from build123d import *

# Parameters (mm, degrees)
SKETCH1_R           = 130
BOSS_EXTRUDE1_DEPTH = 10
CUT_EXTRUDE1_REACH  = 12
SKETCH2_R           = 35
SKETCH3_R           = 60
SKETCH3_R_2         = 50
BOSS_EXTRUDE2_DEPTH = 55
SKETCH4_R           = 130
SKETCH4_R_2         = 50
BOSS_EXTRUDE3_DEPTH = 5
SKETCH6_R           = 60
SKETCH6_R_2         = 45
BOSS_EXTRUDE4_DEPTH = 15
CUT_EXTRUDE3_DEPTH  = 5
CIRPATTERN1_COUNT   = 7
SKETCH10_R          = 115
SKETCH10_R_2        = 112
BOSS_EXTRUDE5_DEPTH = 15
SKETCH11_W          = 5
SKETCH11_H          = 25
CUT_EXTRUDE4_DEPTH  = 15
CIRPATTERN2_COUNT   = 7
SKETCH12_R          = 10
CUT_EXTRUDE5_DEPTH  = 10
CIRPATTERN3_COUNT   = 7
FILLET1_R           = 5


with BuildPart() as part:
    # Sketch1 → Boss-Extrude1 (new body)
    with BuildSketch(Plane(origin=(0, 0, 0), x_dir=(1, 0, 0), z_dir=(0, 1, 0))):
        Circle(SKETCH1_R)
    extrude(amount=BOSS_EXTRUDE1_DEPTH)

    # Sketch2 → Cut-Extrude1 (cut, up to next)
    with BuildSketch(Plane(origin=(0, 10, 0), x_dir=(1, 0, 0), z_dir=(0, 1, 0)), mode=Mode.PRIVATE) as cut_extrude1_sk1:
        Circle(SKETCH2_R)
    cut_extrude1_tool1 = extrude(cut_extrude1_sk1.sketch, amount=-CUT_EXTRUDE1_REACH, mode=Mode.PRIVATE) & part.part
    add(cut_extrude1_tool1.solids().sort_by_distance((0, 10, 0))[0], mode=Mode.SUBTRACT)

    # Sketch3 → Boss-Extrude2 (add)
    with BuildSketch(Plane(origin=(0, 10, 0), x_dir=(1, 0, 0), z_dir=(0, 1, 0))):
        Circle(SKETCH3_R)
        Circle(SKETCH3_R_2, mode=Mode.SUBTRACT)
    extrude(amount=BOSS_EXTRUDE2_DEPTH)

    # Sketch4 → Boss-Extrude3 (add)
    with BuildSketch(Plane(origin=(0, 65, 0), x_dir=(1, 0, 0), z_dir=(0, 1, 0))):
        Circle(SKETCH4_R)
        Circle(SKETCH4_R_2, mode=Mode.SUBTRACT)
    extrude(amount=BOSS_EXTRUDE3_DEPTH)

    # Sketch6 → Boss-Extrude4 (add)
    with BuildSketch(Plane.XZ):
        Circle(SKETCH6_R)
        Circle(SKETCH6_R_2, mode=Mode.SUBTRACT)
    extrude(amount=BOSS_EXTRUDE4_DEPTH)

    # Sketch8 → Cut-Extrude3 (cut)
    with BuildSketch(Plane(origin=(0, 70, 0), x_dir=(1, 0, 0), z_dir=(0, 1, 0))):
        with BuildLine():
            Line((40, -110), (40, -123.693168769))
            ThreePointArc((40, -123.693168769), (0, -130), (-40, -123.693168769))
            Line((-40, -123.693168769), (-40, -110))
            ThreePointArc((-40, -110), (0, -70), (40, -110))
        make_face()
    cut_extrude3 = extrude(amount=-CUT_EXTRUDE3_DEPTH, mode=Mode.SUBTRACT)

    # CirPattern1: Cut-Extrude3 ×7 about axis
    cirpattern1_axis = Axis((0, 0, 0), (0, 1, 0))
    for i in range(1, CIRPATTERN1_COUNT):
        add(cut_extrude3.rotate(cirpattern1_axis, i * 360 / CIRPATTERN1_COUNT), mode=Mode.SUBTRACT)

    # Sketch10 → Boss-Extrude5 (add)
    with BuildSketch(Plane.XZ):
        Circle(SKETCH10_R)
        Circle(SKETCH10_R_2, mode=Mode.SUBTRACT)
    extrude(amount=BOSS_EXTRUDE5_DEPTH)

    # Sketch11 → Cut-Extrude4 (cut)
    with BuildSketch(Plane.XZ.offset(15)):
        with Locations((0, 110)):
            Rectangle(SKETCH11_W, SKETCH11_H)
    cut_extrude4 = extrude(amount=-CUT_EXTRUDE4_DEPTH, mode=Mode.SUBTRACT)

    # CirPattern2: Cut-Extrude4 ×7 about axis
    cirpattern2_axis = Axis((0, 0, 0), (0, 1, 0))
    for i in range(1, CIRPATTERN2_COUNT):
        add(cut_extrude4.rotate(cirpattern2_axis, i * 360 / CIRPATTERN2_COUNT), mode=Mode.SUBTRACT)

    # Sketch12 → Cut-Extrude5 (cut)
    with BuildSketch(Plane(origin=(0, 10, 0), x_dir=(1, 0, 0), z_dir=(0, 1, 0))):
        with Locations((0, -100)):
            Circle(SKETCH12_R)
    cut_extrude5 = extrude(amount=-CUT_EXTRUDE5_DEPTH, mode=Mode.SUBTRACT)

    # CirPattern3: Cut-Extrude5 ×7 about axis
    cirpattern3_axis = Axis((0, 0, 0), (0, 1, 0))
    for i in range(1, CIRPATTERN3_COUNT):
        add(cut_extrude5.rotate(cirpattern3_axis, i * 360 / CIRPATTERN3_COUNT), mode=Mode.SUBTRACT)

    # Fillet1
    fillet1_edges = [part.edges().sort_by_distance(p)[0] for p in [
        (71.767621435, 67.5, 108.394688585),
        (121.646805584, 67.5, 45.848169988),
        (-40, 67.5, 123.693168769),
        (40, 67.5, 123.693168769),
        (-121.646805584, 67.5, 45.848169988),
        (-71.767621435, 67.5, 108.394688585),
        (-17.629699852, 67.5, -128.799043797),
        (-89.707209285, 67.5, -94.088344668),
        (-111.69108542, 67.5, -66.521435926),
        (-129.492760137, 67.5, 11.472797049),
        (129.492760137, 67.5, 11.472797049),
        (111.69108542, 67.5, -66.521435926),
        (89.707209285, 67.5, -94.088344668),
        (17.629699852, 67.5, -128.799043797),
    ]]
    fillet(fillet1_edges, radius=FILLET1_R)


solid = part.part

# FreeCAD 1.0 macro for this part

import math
import FreeCAD as App
import Part
import Sketcher
from FreeCAD import Vector


def edges_at(feature, points):
    """Names of the edges that pass closest to the given points."""
    edges = feature.Shape.Edges
    near = lambda p: min(range(len(edges)), key=lambda i: edges[i].distToShape(Part.Vertex(*p))[0])
    return sorted({f"Edge{near(p) + 1}" for p in points})

doc = App.newDocument("Part")
body = doc.addObject("PartDesign::Body", "Body")

# Sketch on XZ plane
sketch1 = body.newObject("Sketcher::SketchObject", "Sketch")
sketch1.AttachmentSupport = (doc.getObject("XZ_Plane"), [""])
sketch1.MapMode = "FlatFace"
sketch1.addGeometry(Part.Circle(Vector(0, 0, 0), Vector(0, 0, 1), 130), False)
sketch1.addConstraint(Sketcher.Constraint("Coincident", 0, 3, -1, 1))
sketch1.addConstraint(Sketcher.Constraint("Diameter", 0, 260.0))
pad1 = body.newObject("PartDesign::Pad", "Pad")
pad1.Profile = sketch1
pad1.Length = 10
pad1.Reversed = True

# Sketch on XZ plane
sketch2 = body.newObject("Sketcher::SketchObject", "Sketch001")
sketch2.AttachmentSupport = (doc.getObject("XZ_Plane"), [""])
sketch2.MapMode = "FlatFace"
sketch2.AttachmentOffset = App.Placement(Vector(0, 0, -10), App.Rotation())
sketch2.addGeometry(Part.Circle(Vector(0, 0, 0), Vector(0, 0, 1), 35), False)
sketch2.addConstraint(Sketcher.Constraint("Coincident", 0, 3, -1, 1))
sketch2.addConstraint(Sketcher.Constraint("Diameter", 0, 70.0))
pocket1 = body.newObject("PartDesign::Pocket", "Pocket")
pocket1.Profile = sketch2
pocket1.Type = "UpToFirst"
pocket1.Reversed = True

# Sketch on XZ plane
sketch3 = body.newObject("Sketcher::SketchObject", "Sketch002")
sketch3.AttachmentSupport = (doc.getObject("XZ_Plane"), [""])
sketch3.MapMode = "FlatFace"
sketch3.AttachmentOffset = App.Placement(Vector(0, 0, -10), App.Rotation())
sketch3.addGeometry(Part.Circle(Vector(0, 0, 0), Vector(0, 0, 1), 60), False)
sketch3.addGeometry(Part.Circle(Vector(0, 0, 0), Vector(0, 0, 1), 50), False)
sketch3.addConstraint(Sketcher.Constraint("Coincident", 0, 3, -1, 1))
sketch3.addConstraint(Sketcher.Constraint("Coincident", 1, 3, -1, 1))
sketch3.addConstraint(Sketcher.Constraint("Diameter", 0, 120.0))
sketch3.addConstraint(Sketcher.Constraint("Diameter", 1, 100.0))
pad2 = body.newObject("PartDesign::Pad", "Pad001")
pad2.Profile = sketch3
pad2.Length = 55
pad2.Reversed = True

# Sketch on XZ plane
sketch4 = body.newObject("Sketcher::SketchObject", "Sketch003")
sketch4.AttachmentSupport = (doc.getObject("XZ_Plane"), [""])
sketch4.MapMode = "FlatFace"
sketch4.AttachmentOffset = App.Placement(Vector(0, 0, -65), App.Rotation())
sketch4.addGeometry(Part.Circle(Vector(0, 0, 0), Vector(0, 0, 1), 130), False)
sketch4.addGeometry(Part.Circle(Vector(0, 0, 0), Vector(0, 0, 1), 50), False)
sketch4.addConstraint(Sketcher.Constraint("Coincident", 0, 3, -1, 1))
sketch4.addConstraint(Sketcher.Constraint("Coincident", 1, 3, -1, 1))
sketch4.addConstraint(Sketcher.Constraint("Diameter", 0, 260.0))
sketch4.addConstraint(Sketcher.Constraint("Diameter", 1, 100.0))
pad3 = body.newObject("PartDesign::Pad", "Pad002")
pad3.Profile = sketch4
pad3.Length = 5
pad3.Reversed = True

# Sketch on XZ plane
sketch5 = body.newObject("Sketcher::SketchObject", "Sketch004")
sketch5.AttachmentSupport = (doc.getObject("XZ_Plane"), [""])
sketch5.MapMode = "FlatFace"
sketch5.addGeometry(Part.Circle(Vector(0, 0, 0), Vector(0, 0, 1), 60), False)
sketch5.addGeometry(Part.Circle(Vector(0, 0, 0), Vector(0, 0, 1), 45), False)
sketch5.addConstraint(Sketcher.Constraint("Coincident", 0, 3, -1, 1))
sketch5.addConstraint(Sketcher.Constraint("Coincident", 1, 3, -1, 1))
sketch5.addConstraint(Sketcher.Constraint("Diameter", 0, 120.0))
sketch5.addConstraint(Sketcher.Constraint("Diameter", 1, 90.0))
pad4 = body.newObject("PartDesign::Pad", "Pad003")
pad4.Profile = sketch5
pad4.Length = 15

# Sketch on XZ plane
sketch6 = body.newObject("Sketcher::SketchObject", "Sketch005")
sketch6.AttachmentSupport = (doc.getObject("XZ_Plane"), [""])
sketch6.MapMode = "FlatFace"
sketch6.AttachmentOffset = App.Placement(Vector(0, 0, -70), App.Rotation())
sketch6.addGeometry(Part.LineSegment(Vector(40, 124, 0), Vector(40, 110, 0)), False)
sketch6.addGeometry(Part.ArcOfCircle(Part.Circle(Vector(0, 110, 0), Vector(0, 0, 1), 40), math.radians(180), math.radians(360)), False)
sketch6.addGeometry(Part.LineSegment(Vector(-40, 110, 0), Vector(-40, 124, 0)), False)
sketch6.addGeometry(Part.ArcOfCircle(Part.Circle(Vector(0, 0, 0), Vector(0, 0, 1), 130), math.radians(72), math.radians(108)), False)
sketch6.addConstraint(Sketcher.Constraint("Tangent", 0, 2, 1, 2))
sketch6.addConstraint(Sketcher.Constraint("Tangent", 1, 1, 2, 1))
sketch6.addConstraint(Sketcher.Constraint("Coincident", 2, 2, 3, 2))
sketch6.addConstraint(Sketcher.Constraint("Coincident", 3, 1, 0, 1))
sketch6.addConstraint(Sketcher.Constraint("Vertical", 0))
sketch6.addConstraint(Sketcher.Constraint("Vertical", 2))
sketch6.addConstraint(Sketcher.Constraint("Coincident", 3, 3, -1, 1))
sketch6.addConstraint(Sketcher.Constraint("PointOnObject", 1, 3, -2))
sketch6.addConstraint(Sketcher.Constraint("Radius", 1, 40.0))
sketch6.addConstraint(Sketcher.Constraint("Radius", 3, 130.0))
sketch6.addConstraint(Sketcher.Constraint("DistanceY", -1, 1, 1, 3, 110.0))
pocket2 = body.newObject("PartDesign::Pocket", "Pocket001")
pocket2.Profile = sketch6
pocket2.Length = 5
pocket2.Reversed = True
doc.recompute()

polarpattern = body.newObject("PartDesign::PolarPattern", "PolarPattern")
polarpattern.Originals = [pocket2]
polarpattern.Axis = (doc.getObject("Y_Axis"), [""])
polarpattern.Angle = 360
polarpattern.Occurrences = 7
body.Tip = polarpattern

# Sketch on XZ plane
sketch7 = body.newObject("Sketcher::SketchObject", "Sketch006")
sketch7.AttachmentSupport = (doc.getObject("XZ_Plane"), [""])
sketch7.MapMode = "FlatFace"
sketch7.addGeometry(Part.Circle(Vector(0, 0, 0), Vector(0, 0, 1), 115), False)
sketch7.addGeometry(Part.Circle(Vector(0, 0, 0), Vector(0, 0, 1), 112), False)
sketch7.addConstraint(Sketcher.Constraint("Coincident", 0, 3, -1, 1))
sketch7.addConstraint(Sketcher.Constraint("Coincident", 1, 3, -1, 1))
sketch7.addConstraint(Sketcher.Constraint("Diameter", 0, 230.0))
sketch7.addConstraint(Sketcher.Constraint("Diameter", 1, 224.0))
pad5 = body.newObject("PartDesign::Pad", "Pad004")
pad5.Profile = sketch7
pad5.Length = 15

# Sketch on XZ plane
sketch8 = body.newObject("Sketcher::SketchObject", "Sketch007")
sketch8.AttachmentSupport = (doc.getObject("XZ_Plane"), [""])
sketch8.MapMode = "FlatFace"
sketch8.AttachmentOffset = App.Placement(Vector(0, 0, 15), App.Rotation())
sketch8.addGeometry(Part.LineSegment(Vector(-2, 122, 0), Vector(-2, 98, 0)), False)
sketch8.addGeometry(Part.LineSegment(Vector(-2, 98, 0), Vector(2, 98, 0)), False)
sketch8.addGeometry(Part.LineSegment(Vector(2, 98, 0), Vector(2, 122, 0)), False)
sketch8.addGeometry(Part.LineSegment(Vector(2, 122, 0), Vector(-2, 122, 0)), False)
sketch8.addConstraint(Sketcher.Constraint("Coincident", 0, 2, 1, 1))
sketch8.addConstraint(Sketcher.Constraint("Coincident", 1, 2, 2, 1))
sketch8.addConstraint(Sketcher.Constraint("Coincident", 2, 2, 3, 1))
sketch8.addConstraint(Sketcher.Constraint("Coincident", 3, 2, 0, 1))
sketch8.addConstraint(Sketcher.Constraint("Vertical", 0))
sketch8.addConstraint(Sketcher.Constraint("Horizontal", 1))
sketch8.addConstraint(Sketcher.Constraint("Vertical", 2))
sketch8.addConstraint(Sketcher.Constraint("Horizontal", 3))
sketch8.addConstraint(Sketcher.Constraint("DistanceX", 1, 1, 1, 2, 5.0))
sketch8.addConstraint(Sketcher.Constraint("DistanceY", 0, 2, 0, 1, 25.0))
sketch8.addConstraint(Sketcher.Constraint("DistanceX", 0, 2, -1, 1, 2.5))
sketch8.addConstraint(Sketcher.Constraint("DistanceY", -1, 1, 0, 2, 97.5))
pocket3 = body.newObject("PartDesign::Pocket", "Pocket002")
pocket3.Profile = sketch8
pocket3.Length = 15
doc.recompute()

polarpattern2 = body.newObject("PartDesign::PolarPattern", "PolarPattern001")
polarpattern2.Originals = [pocket3]
polarpattern2.Axis = (doc.getObject("Y_Axis"), [""])
polarpattern2.Angle = 360
polarpattern2.Occurrences = 7
body.Tip = polarpattern2

# Sketch on XZ plane
sketch9 = body.newObject("Sketcher::SketchObject", "Sketch008")
sketch9.AttachmentSupport = (doc.getObject("XZ_Plane"), [""])
sketch9.MapMode = "FlatFace"
sketch9.AttachmentOffset = App.Placement(Vector(0, 0, -10), App.Rotation())
sketch9.addGeometry(Part.Circle(Vector(0, 100, 0), Vector(0, 0, 1), 10), False)
sketch9.addConstraint(Sketcher.Constraint("PointOnObject", 0, 3, -2))
sketch9.addConstraint(Sketcher.Constraint("Diameter", 0, 20.0))
sketch9.addConstraint(Sketcher.Constraint("DistanceY", -1, 1, 0, 3, 100.0))
pocket4 = body.newObject("PartDesign::Pocket", "Pocket003")
pocket4.Profile = sketch9
pocket4.Length = 10
pocket4.Reversed = True
doc.recompute()

polarpattern3 = body.newObject("PartDesign::PolarPattern", "PolarPattern002")
polarpattern3.Originals = [pocket4]
polarpattern3.Axis = (doc.getObject("Y_Axis"), [""])
polarpattern3.Angle = 360
polarpattern3.Occurrences = 7
body.Tip = polarpattern3
doc.recompute()

fillet = body.newObject("PartDesign::Fillet", "Fillet")
fillet.Base = (polarpattern3, edges_at(polarpattern3, [
    (71.768, 67.5, 108.395),
    (121.647, 67.5, 45.848),
    (-40, 67.5, 123.693),
    (40, 67.5, 123.693),
    (-121.647, 67.5, 45.848),
    (-71.768, 67.5, 108.395),
    (-17.63, 67.5, -128.799),
    (-89.707, 67.5, -94.088),
    (-111.691, 67.5, -66.521),
    (-129.493, 67.5, 11.473),
    (129.493, 67.5, 11.473),
    (111.691, 67.5, -66.521),
    (89.707, 67.5, -94.088),
    (17.63, 67.5, -128.799),
]))
fillet.Radius = 5

doc.recompute()
